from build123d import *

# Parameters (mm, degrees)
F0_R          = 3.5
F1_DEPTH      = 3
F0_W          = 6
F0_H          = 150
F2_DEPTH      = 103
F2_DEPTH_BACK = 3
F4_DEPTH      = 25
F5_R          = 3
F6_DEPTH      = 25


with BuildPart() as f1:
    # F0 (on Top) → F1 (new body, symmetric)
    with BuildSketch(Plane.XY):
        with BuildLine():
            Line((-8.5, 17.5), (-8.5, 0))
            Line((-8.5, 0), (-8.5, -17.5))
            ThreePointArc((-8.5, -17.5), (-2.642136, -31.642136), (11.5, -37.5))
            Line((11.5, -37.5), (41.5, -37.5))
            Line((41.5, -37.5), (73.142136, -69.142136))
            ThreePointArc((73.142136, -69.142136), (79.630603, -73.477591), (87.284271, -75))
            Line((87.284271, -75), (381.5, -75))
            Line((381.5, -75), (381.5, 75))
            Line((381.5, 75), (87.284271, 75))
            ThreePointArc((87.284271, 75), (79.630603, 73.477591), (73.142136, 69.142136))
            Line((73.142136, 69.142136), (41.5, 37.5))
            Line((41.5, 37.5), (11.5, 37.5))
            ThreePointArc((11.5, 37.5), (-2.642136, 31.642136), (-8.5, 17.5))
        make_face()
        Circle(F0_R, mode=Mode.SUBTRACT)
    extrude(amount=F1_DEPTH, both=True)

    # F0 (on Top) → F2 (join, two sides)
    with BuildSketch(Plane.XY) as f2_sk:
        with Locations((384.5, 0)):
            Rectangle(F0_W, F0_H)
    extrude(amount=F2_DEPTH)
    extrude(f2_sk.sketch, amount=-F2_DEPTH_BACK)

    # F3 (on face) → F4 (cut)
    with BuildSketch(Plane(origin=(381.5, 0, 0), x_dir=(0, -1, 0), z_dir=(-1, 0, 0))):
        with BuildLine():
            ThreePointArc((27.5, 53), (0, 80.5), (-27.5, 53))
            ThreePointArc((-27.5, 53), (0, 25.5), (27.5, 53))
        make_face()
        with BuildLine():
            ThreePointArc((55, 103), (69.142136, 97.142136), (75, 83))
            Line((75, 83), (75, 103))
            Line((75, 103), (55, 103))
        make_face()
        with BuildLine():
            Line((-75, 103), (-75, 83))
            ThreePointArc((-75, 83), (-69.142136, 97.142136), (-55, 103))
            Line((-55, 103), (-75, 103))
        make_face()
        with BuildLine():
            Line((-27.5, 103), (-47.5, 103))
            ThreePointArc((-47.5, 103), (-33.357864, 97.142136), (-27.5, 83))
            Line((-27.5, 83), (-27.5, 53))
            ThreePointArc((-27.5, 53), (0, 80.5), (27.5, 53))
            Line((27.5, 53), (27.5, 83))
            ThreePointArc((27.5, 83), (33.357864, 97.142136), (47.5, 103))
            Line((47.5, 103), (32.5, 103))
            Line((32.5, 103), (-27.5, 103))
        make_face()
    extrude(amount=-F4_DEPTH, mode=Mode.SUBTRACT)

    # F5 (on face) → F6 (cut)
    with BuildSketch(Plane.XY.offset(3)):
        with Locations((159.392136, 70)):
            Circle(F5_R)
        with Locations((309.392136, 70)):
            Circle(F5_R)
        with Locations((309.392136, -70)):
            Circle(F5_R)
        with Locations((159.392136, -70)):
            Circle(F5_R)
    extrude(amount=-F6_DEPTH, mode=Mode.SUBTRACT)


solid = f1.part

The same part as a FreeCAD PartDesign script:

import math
import FreeCAD as App
import Part
import Sketcher
from FreeCAD import Vector
Q = App.Units.Quantity

doc = App.newDocument("Part")
body = doc.addObject("PartDesign::Body", "Body")

sketch1 = body.newObject("Sketcher::SketchObject", "Sketch")
sketch1.AttachmentSupport = (doc.getObject("XY_Plane"), [""])
sketch1.MapMode = "FlatFace"
sketch1.addGeometry(Part.LineSegment(Vector(-8.5, 17.5, 0), Vector(-8.5, -17.5, 0)), False)
sketch1.addGeometry(Part.ArcOfCircle(Part.Circle(Vector(11.5, -17.5, 0), Vector(0, 0, 1), 20), math.radians(180), math.radians(270)), False)
sketch1.addGeometry(Part.LineSegment(Vector(11.5, -37.5, 0), Vector(41.5, -37.5, 0)), False)
sketch1.addGeometry(Part.LineSegment(Vector(41.5, -37.5, 0), Vector(73.1, -69.1, 0)), False)
sketch1.addGeometry(Part.ArcOfCircle(Part.Circle(Vector(87.3, -55, 0), Vector(0, 0, 1), 20), math.radians(-135), math.radians(-90)), False)
sketch1.addGeometry(Part.LineSegment(Vector(87.3, -75, 0), Vector(381.5, -75, 0)), False)
sketch1.addGeometry(Part.LineSegment(Vector(381.5, -75, 0), Vector(381.5, 75, 0)), False)
sketch1.addGeometry(Part.LineSegment(Vector(381.5, 75, 0), Vector(87.3, 75, 0)), False)
sketch1.addGeometry(Part.ArcOfCircle(Part.Circle(Vector(87.3, 55, 0), Vector(0, 0, 1), 20), math.radians(90), math.radians(135)), False)
sketch1.addGeometry(Part.LineSegment(Vector(73.1, 69.1, 0), Vector(41.5, 37.5, 0)), False)
sketch1.addGeometry(Part.LineSegment(Vector(41.5, 37.5, 0), Vector(11.5, 37.5, 0)), False)
sketch1.addGeometry(Part.ArcOfCircle(Part.Circle(Vector(11.5, 17.5, 0), Vector(0, 0, 1), 20), math.radians(90), math.radians(180)), False)
sketch1.addGeometry(Part.Circle(Vector(0, 0, 0), Vector(0, 0, 1), 3.5), False)
sketch1.addConstraint(Sketcher.Constraint("Tangent", 0, 2, 1, 1))
sketch1.addConstraint(Sketcher.Constraint("Tangent", 1, 2, 2, 1))
sketch1.addConstraint(Sketcher.Constraint("Coincident", 2, 2, 3, 1))
sketch1.addConstraint(Sketcher.Constraint("Tangent", 3, 2, 4, 1))
sketch1.addConstraint(Sketcher.Constraint("Tangent", 4, 2, 5, 1))
sketch1.addConstraint(Sketcher.Constraint("Coincident", 5, 2, 6, 1))
sketch1.addConstraint(Sketcher.Constraint("Coincident", 6, 2, 7, 1))
sketch1.addConstraint(Sketcher.Constraint("Tangent", 7, 2, 8, 1))
sketch1.addConstraint(Sketcher.Constraint("Tangent", 8, 2, 9, 1))
sketch1.addConstraint(Sketcher.Constraint("Coincident", 9, 2, 10, 1))
sketch1.addConstraint(Sketcher.Constraint("Tangent", 10, 2, 11, 1))
sketch1.addConstraint(Sketcher.Constraint("Tangent", 11, 2, 0, 1))
sketch1.addConstraint(Sketcher.Constraint("Vertical", 0))
sketch1.addConstraint(Sketcher.Constraint("Horizontal", 2))
sketch1.addConstraint(Sketcher.Constraint("Horizontal", 5))
sketch1.addConstraint(Sketcher.Constraint("Vertical", 6))
sketch1.addConstraint(Sketcher.Constraint("Horizontal", 7))
sketch1.addConstraint(Sketcher.Constraint("Horizontal", 10))
sketch1.addConstraint(Sketcher.Constraint("Coincident", 12, 3, -1, 1))
sketch1.addConstraint(Sketcher.Constraint("Equal", 1, 4))
sketch1.addConstraint(Sketcher.Constraint("Equal", 4, 8))
sketch1.addConstraint(Sketcher.Constraint("Equal", 8, 11))
sketch1.addConstraint(Sketcher.Constraint("Symmetric", 4, 3, 8, 3, -1))
sketch1.addConstraint(Sketcher.Constraint("Symmetric", 2, 2, 9, 2, -1))
sketch1.addConstraint(Sketcher.Constraint("Perpendicular", 3, 9))
sketch1.addConstraint(Sketcher.Constraint("Diameter", 12, Q("7 mm")))
sketch1.addConstraint(Sketcher.Constraint("Radius", 1, Q("19.999999 mm")))
sketch1.addConstraint(Sketcher.Constraint("DistanceX", 2, 1, 2, 2, Q("30 mm")))
sketch1.addConstraint(Sketcher.Constraint("DistanceY", 0, 2, 0, 1, Q("35 mm")))
sketch1.addConstraint(Sketcher.Constraint("DistanceY", 6, 1, 6, 2, Q("150 mm")))
sketch1.addConstraint(Sketcher.Constraint("DistanceX", 2, 2, 5, 2, Q("340 mm")))
sketch1.addConstraint(Sketcher.Constraint("DistanceX", -1, 1, 1, 3, Q("11.499999 mm")))
pad1 = body.newObject("PartDesign::Pad", "Pad")
pad1.Profile = sketch1
pad1.Length = 6
pad1.Midplane = True

sketch2 = body.newObject("Sketcher::SketchObject", "Sketch001")
sketch2.AttachmentSupport = (doc.getObject("XY_Plane"), [""])
sketch2.MapMode = "FlatFace"
sketch2.addGeometry(Part.LineSegment(Vector(382, 75, 0), Vector(382, -75, 0)), False)
sketch2.addGeometry(Part.LineSegment(Vector(382, -75, 0), Vector(388, -75, 0)), False)
sketch2.addGeometry(Part.LineSegment(Vector(388, -75, 0), Vector(388, 75, 0)), False)
sketch2.addGeometry(Part.LineSegment(Vector(388, 75, 0), Vector(382, 75, 0)), False)
sketch2.addConstraint(Sketcher.Constraint("Coincident", 0, 2, 1, 1))
sketch2.addConstraint(Sketcher.Constraint("Coincident", 1, 2, 2, 1))
sketch2.addConstraint(Sketcher.Constraint("Coincident", 2, 2, 3, 1))
sketch2.addConstraint(Sketcher.Constraint("Coincident", 3, 2, 0, 1))
sketch2.addConstraint(Sketcher.Constraint("Vertical", 0))
sketch2.addConstraint(Sketcher.Constraint("Horizontal", 1))
sketch2.addConstraint(Sketcher.Constraint("Vertical", 2))
sketch2.addConstraint(Sketcher.Constraint("Horizontal", 3))
sketch2.addConstraint(Sketcher.Constraint("DistanceX", 1, 1, 1, 2, Q("6 mm")))
sketch2.addConstraint(Sketcher.Constraint("DistanceY", 0, 2, 0, 1, Q("150 mm")))
sketch2.addConstraint(Sketcher.Constraint("DistanceY", 0, 2, -1, 1, Q("75 mm")))
sketch2.addConstraint(Sketcher.Constraint("DistanceX", -1, 1, 0, 2, Q("381.5 mm")))
pad2 = body.newObject("PartDesign::Pad", "Pad001")
pad2.Profile = sketch2
pad2.Type = "TwoLengths"
pad2.Length = 103
pad2.Length2 = 3

sketch3 = body.newObject("Sketcher::SketchObject", "Sketch002")
sketch3.AttachmentSupport = (doc.getObject("YZ_Plane"), [""])
sketch3.MapMode = "FlatFace"
sketch3.AttachmentOffset = App.Placement(Vector(0, 0, 381.5), App.Rotation())
sketch3.addGeometry(Part.ArcOfCircle(Part.Circle(Vector(0, 53, 0), Vector(0, 0, 1), 28), math.radians(180), math.radians(360)), False)
sketch3.addGeometry(Part.LineSegment(Vector(-28, 53, 0), Vector(-28, 83, 0)), False)
sketch3.addGeometry(Part.ArcOfCircle(Part.Circle(Vector(-47, 83, 0), Vector(0, 0, 1), 20), math.radians(0), math.radians(90)), False)
sketch3.addGeometry(Part.LineSegment(Vector(-48, 103, 0), Vector(48, 103, 0)), False)
sketch3.addGeometry(Part.ArcOfCircle(Part.Circle(Vector(47, 83, 0), Vector(0, 0, 1), 20), math.radians(90), math.radians(180)), False)
sketch3.addGeometry(Part.LineSegment(Vector(28, 83, 0), Vector(28, 53, 0)), False)
sketch3.addGeometry(Part.ArcOfCircle(Part.Circle(Vector(-55, 83, 0), Vector(0, 0, 1), 20), math.radians(90), math.radians(180)), False)
sketch3.addGeometry(Part.LineSegment(Vector(-75, 83, 0), Vector(-75, 103, 0)), False)
sketch3.addGeometry(Part.LineSegment(Vector(-75, 103, 0), Vector(-55, 103, 0)), False)
sketch3.addGeometry(Part.LineSegment(Vector(75, 103, 0), Vector(75, 83, 0)), False)
sketch3.addGeometry(Part.ArcOfCircle(Part.Circle(Vector(55, 83, 0), Vector(0, 0, 1), 20), math.radians(0), math.radians(90)), False)
sketch3.addGeometry(Part.LineSegment(Vector(55, 103, 0), Vector(75, 103, 0)), False)
sketch3.addConstraint(Sketcher.Constraint("Tangent", 0, 1, 1, 1))
sketch3.addConstraint(Sketcher.Constraint("Tangent", 1, 2, 2, 1))
sketch3.addConstraint(Sketcher.Constraint("Tangent", 2, 2, 3, 1))
sketch3.addConstraint(Sketcher.Constraint("Tangent", 3, 2, 4, 1))
sketch3.addConstraint(Sketcher.Constraint("Tangent", 4, 2, 5, 1))
sketch3.addConstraint(Sketcher.Constraint("Tangent", 5, 2, 0, 2))
sketch3.addConstraint(Sketcher.Constraint("Tangent", 6, 2, 7, 1))
sketch3.addConstraint(Sketcher.Constraint("Coincident", 7, 2, 8, 1))
sketch3.addConstraint(Sketcher.Constraint("Tangent", 8, 2, 6, 1))
sketch3.addConstraint(Sketcher.Constraint("Tangent", 9, 2, 10, 1))
sketch3.addConstraint(Sketcher.Constraint("Tangent", 10, 2, 11, 1))
sketch3.addConstraint(Sketcher.Constraint("Coincident", 11, 2, 9, 1))
sketch3.addConstraint(Sketcher.Constraint("Vertical", 1))
sketch3.addConstraint(Sketcher.Constraint("Horizontal", 3))
sketch3.addConstraint(Sketcher.Constraint("Vertical", 5))
sketch3.addConstraint(Sketcher.Constraint("Vertical", 7))
sketch3.addConstraint(Sketcher.Constraint("Horizontal", 8))
sketch3.addConstraint(Sketcher.Constraint("Vertical", 9))
sketch3.addConstraint(Sketcher.Constraint("Horizontal", 11))
sketch3.addConstraint(Sketcher.Constraint("Equal", 2, 4))
sketch3.addConstraint(Sketcher.Constraint("Equal", 4, 6))
sketch3.addConstraint(Sketcher.Constraint("Equal", 6, 10))
sketch3.addConstraint(Sketcher.Constraint("Symmetric", 6, 3, 10, 3, -2))
sketch3.addConstraint(Sketcher.Constraint("PointOnObject", 0, 3, -2))
sketch3.addConstraint(Sketcher.Constraint("Horizontal", 4, 3, 6, 3))
sketch3.addConstraint(Sketcher.Constraint("Radius", 2, Q("19.999999 mm")))
sketch3.addConstraint(Sketcher.Constraint("Radius", 0, Q("27.5 mm")))
sketch3.addConstraint(Sketcher.Constraint("DistanceY", 1, 1, 1, 2, Q("30 mm")))
sketch3.addConstraint(Sketcher.Constraint("DistanceY", -1, 1, 0, 3, Q("53 mm")))
sketch3.addConstraint(Sketcher.Constraint("DistanceX", 6, 3, -1, 1, Q("55.000001 mm")))
pocket1 = body.newObject("PartDesign::Pocket", "Pocket")
pocket1.Profile = sketch3
pocket1.Length = 25
pocket1.Reversed = True

sketch4 = body.newObject("Sketcher::SketchObject", "Sketch003")
sketch4.AttachmentSupport = (doc.getObject("XY_Plane"), [""])
sketch4.MapMode = "FlatFace"
sketch4.AttachmentOffset = App.Placement(Vector(0, 0, 3), App.Rotation())
sketch4.addGeometry(Part.Circle(Vector(159.4, 70, 0), Vector(0, 0, 1), 3), False)
sketch4.addGeometry(Part.Circle(Vector(309.4, 70, 0), Vector(0, 0, 1), 3), False)
sketch4.addGeometry(Part.Circle(Vector(309.4, -70, 0), Vector(0, 0, 1), 3), False)
sketch4.addGeometry(Part.Circle(Vector(159.4, -70, 0), Vector(0, 0, 1), 3), False)
sketch4.addConstraint(Sketcher.Constraint("Equal", 0, 1))
sketch4.addConstraint(Sketcher.Constraint("Equal", 1, 2))
sketch4.addConstraint(Sketcher.Constraint("Equal", 2, 3))
sketch4.addConstraint(Sketcher.Constraint("Symmetric", 1, 3, 2, 3, -1))
sketch4.addConstraint(Sketcher.Constraint("Symmetric", 0, 3, 3, 3, -1))
sketch4.addConstraint(Sketcher.Constraint("Horizontal", 0, 3, 1, 3))
sketch4.addConstraint(Sketcher.Constraint("Diameter", 0, Q("6 mm")))
sketch4.addConstraint(Sketcher.Constraint("DistanceY", -1, 1, 0, 3, Q("70 mm")))
sketch4.addConstraint(Sketcher.Constraint("DistanceX", 0, 3, 1, 3, Q("150 mm")))
sketch4.addConstraint(Sketcher.Constraint("DistanceX", -1, 1, 0, 3, Q("159.392136 mm")))
pocket2 = body.newObject("PartDesign::Pocket", "Pocket001")
pocket2.Profile = sketch4
pocket2.Length = 25

doc.recompute()
